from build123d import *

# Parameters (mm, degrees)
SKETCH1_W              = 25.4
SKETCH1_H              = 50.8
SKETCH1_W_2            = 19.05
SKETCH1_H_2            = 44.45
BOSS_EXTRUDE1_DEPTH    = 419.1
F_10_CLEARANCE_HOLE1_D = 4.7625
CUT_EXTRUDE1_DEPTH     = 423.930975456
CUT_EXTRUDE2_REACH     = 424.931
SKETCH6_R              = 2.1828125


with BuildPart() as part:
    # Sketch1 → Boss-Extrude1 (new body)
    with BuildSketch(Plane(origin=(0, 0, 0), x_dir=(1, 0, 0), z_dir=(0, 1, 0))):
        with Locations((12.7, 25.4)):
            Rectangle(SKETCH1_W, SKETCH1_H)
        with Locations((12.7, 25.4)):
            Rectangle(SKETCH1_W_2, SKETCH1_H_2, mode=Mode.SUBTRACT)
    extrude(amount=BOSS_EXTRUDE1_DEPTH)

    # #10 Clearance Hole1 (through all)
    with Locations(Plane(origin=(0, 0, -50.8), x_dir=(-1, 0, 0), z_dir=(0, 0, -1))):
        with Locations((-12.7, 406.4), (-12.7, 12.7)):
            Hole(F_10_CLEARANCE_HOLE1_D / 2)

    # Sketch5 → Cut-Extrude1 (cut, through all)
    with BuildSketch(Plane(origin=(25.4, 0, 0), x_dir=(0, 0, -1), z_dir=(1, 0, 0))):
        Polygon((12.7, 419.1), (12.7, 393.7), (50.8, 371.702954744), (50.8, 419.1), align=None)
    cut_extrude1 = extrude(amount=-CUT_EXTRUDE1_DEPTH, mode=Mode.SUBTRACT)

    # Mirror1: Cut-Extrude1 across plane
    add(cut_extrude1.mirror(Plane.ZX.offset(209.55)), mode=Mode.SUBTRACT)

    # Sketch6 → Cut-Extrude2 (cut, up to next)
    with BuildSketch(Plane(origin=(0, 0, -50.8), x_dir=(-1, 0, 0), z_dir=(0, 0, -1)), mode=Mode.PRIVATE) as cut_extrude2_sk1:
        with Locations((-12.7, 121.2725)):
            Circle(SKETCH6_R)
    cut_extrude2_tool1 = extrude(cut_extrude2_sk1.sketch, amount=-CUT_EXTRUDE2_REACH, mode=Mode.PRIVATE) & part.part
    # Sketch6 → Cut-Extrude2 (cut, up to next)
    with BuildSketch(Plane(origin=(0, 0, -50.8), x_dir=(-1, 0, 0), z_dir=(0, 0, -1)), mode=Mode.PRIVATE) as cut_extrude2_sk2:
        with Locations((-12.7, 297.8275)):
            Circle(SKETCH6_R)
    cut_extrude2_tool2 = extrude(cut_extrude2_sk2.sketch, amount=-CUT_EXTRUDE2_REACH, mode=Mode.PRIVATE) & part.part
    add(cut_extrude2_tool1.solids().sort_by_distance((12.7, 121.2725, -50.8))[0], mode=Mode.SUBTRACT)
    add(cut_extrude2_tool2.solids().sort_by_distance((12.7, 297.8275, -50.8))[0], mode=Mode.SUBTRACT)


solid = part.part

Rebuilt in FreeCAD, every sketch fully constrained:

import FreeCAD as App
import Part
import Sketcher

V = App.Vector
Q = App.Units.Quantity

doc = App.newDocument("Part")
body = doc.addObject("PartDesign::Body", "Body")

# Sketch on XZ plane
sketch1 = body.newObject("Sketcher::SketchObject", "Sketch")
sketch1.AttachmentSupport = (doc.getObject("XZ_Plane"), [""])
sketch1.MapMode = "FlatFace"
sketch1.addGeometry(Part.LineSegment(V(0, -51, 0), V(0, 0, 0)), False)
sketch1.addGeometry(Part.LineSegment(V(0, 0, 0), V(25, 0, 0)), False)
sketch1.addGeometry(Part.LineSegment(V(25, 0, 0), V(25, -51, 0)), False)
sketch1.addGeometry(Part.LineSegment(V(25, -51, 0), V(0, -51, 0)), False)
sketch1.addGeometry(Part.LineSegment(V(22, -3, 0), V(3, -3, 0)), False)
sketch1.addGeometry(Part.LineSegment(V(3, -3, 0), V(3, -48, 0)), False)
sketch1.addGeometry(Part.LineSegment(V(3, -48, 0), V(22, -48, 0)), False)
sketch1.addGeometry(Part.LineSegment(V(22, -48, 0), V(22, -3, 0)), False)
sketch1.addConstraint(Sketcher.Constraint("Coincident", 0, 2, 1, 1))
sketch1.addConstraint(Sketcher.Constraint("Coincident", 1, 2, 2, 1))
sketch1.addConstraint(Sketcher.Constraint("Coincident", 2, 2, 3, 1))
sketch1.addConstraint(Sketcher.Constraint("Coincident", 3, 2, 0, 1))
sketch1.addConstraint(Sketcher.Constraint("Coincident", 4, 2, 5, 1))
sketch1.addConstraint(Sketcher.Constraint("Coincident", 5, 2, 6, 1))
sketch1.addConstraint(Sketcher.Constraint("Coincident", 6, 2, 7, 1))
sketch1.addConstraint(Sketcher.Constraint("Coincident", 7, 2, 4, 1))
sketch1.addConstraint(Sketcher.Constraint("Vertical", 0))
sketch1.addConstraint(Sketcher.Constraint("Horizontal", 1))
sketch1.addConstraint(Sketcher.Constraint("Vertical", 2))
sketch1.addConstraint(Sketcher.Constraint("Horizontal", 3))
sketch1.addConstraint(Sketcher.Constraint("Horizontal", 4))
sketch1.addConstraint(Sketcher.Constraint("Vertical", 5))
sketch1.addConstraint(Sketcher.Constraint("Horizontal", 6))
sketch1.addConstraint(Sketcher.Constraint("Vertical", 7))
sketch1.addConstraint(Sketcher.Constraint("Coincident", 0, 2, -1, 1))
sketch1.addConstraint(Sketcher.Constraint("DistanceX", 1, 1, 1, 2, Q("1 in")))
sketch1.addConstraint(Sketcher.Constraint("DistanceY", 0, 1, 0, 2, Q("2 in")))
sketch1.addConstraint(Sketcher.Constraint("DistanceX", 4, 2, 4, 1, Q("0.75 in")))
sketch1.addConstraint(Sketcher.Constraint("DistanceY", 5, 2, 5, 1, Q("1.75 in")))
sketch1.addConstraint(Sketcher.Constraint("DistanceX", -1, 1, 4, 2, Q("0.125 in")))
sketch1.addConstraint(Sketcher.Constraint("DistanceY", 4, 2, -1, 1, Q("0.125 in")))
pad1 = body.newObject("PartDesign::Pad", "Pad")
pad1.Profile = sketch1
pad1.Length = Q("16.5 in")
pad1.Reversed = True

# Sketch on XY plane
sketch2 = body.newObject("Sketcher::SketchObject", "Sketch001")
sketch2.AttachmentSupport = (doc.getObject("XY_Plane"), [""])
sketch2.MapMode = "FlatFace"
sketch2.AttachmentOffset = App.Placement(V(0, 0, -2 * 25.4), App.Rotation())
sketch2.addGeometry(Part.Circle(V(12.7, 406.4, 0), V(0, 0, 1), 2.4), False)
sketch2.addGeometry(Part.Circle(V(12.7, 12.7, 0), V(0, 0, 1), 2.4), False)
sketch2.addConstraint(Sketcher.Constraint("Equal", 0, 1))
sketch2.addConstraint(Sketcher.Constraint("Vertical", 0, 3, 1, 3))
sketch2.addConstraint(Sketcher.Constraint("Diameter", 0, Q("0.1875 in")))
sketch2.addConstraint(Sketcher.Constraint("DistanceY", -1, 1, 0, 3, Q("16 in")))
sketch2.addConstraint(Sketcher.Constraint("DistanceX", -1, 1, 0, 3, Q("0.5 in")))
sketch2.addConstraint(Sketcher.Constraint("DistanceY", -1, 1, 1, 3, Q("0.5 in")))
doc.recompute()
hole = body.newObject("PartDesign::Hole", "Hole")
hole.Profile = sketch2
hole.ThreadType = "None"
hole.Diameter = Q("0.1875 in")
hole.DepthType = "ThroughAll"
hole.Reversed = True

# Sketch on YZ plane
sketch3 = body.newObject("Sketcher::SketchObject", "Sketch002")
sketch3.AttachmentSupport = (doc.getObject("YZ_Plane"), [""])
sketch3.MapMode = "FlatFace"
sketch3.AttachmentOffset = App.Placement(V(0, 0, 1 * 25.4), App.Rotation())
sketch3.addGeometry(Part.LineSegment(V(419, -13, 0), V(394, -13, 0)), False)
sketch3.addGeometry(Part.LineSegment(V(394, -13, 0), V(372, -51, 0)), False)
sketch3.addGeometry(Part.LineSegment(V(372, -51, 0), V(419, -51, 0)), False)
sketch3.addGeometry(Part.LineSegment(V(419, -51, 0), V(419, -13, 0)), False)
sketch3.addConstraint(Sketcher.Constraint("Coincident", 0, 2, 1, 1))
sketch3.addConstraint(Sketcher.Constraint("Coincident", 1, 2, 2, 1))
sketch3.addConstraint(Sketcher.Constraint("Coincident", 2, 2, 3, 1))
sketch3.addConstraint(Sketcher.Constraint("Coincident", 3, 2, 0, 1))
sketch3.addConstraint(Sketcher.Constraint("Horizontal", 0))
sketch3.addConstraint(Sketcher.Constraint("Horizontal", 2))
sketch3.addConstraint(Sketcher.Constraint("Vertical", 3))
sketch3.addConstraint(Sketcher.Constraint("DistanceX", 0, 2, 0, 1, Q("1 in")))
sketch3.addConstraint(Sketcher.Constraint("DistanceY", 3, 1, 3, 2, Q("1.5 in")))
sketch3.addConstraint(Sketcher.Constraint("DistanceY", 1, 2, -1, 1, Q("2 in")))
sketch3.addConstraint(Sketcher.Constraint("Angle", 1, Q("-120 deg")))
sketch3.addConstraint(Sketcher.Constraint("DistanceX", -1, 1, 0, 2, Q("15.5 in")))
pocket1 = body.newObject("PartDesign::Pocket", "Pocket")
pocket1.Profile = sketch3
pocket1.Type = "ThroughAll"
doc.recompute()

datumplane = body.newObject("PartDesign::Plane", "DatumPlane")
datumplane.AttachmentSupport = (doc.getObject("XZ_Plane"), [""])
datumplane.MapMode = "FlatFace"
datumplane.AttachmentOffset = App.Placement(V(0, 0, -8.25 * 25.4), App.Rotation())
mirrored = body.newObject("PartDesign::Mirrored", "Mirrored")
mirrored.Originals = [pocket1]
mirrored.MirrorPlane = (datumplane, [""])
body.Tip = mirrored

# Sketch on XY plane
sketch4 = body.newObject("Sketcher::SketchObject", "Sketch003")
sketch4.AttachmentSupport = (doc.getObject("XY_Plane"), [""])
sketch4.MapMode = "FlatFace"
sketch4.AttachmentOffset = App.Placement(V(0, 0, -2 * 25.4), App.Rotation())
sketch4.addGeometry(Part.Circle(V(12.7, 121.3, 0), V(0, 0, 1), 2.2), False)
sketch4.addConstraint(Sketcher.Constraint("Diameter", 0, Q("0.171875 in")))
sketch4.addConstraint(Sketcher.Constraint("DistanceX", -1, 1, 0, 3, Q("0.5 in")))
sketch4.addConstraint(Sketcher.Constraint("DistanceY", -1, 1, 0, 3, 121.2725))
pocket2 = body.newObject("PartDesign::Pocket", "Pocket001")
pocket2.Profile = sketch4
pocket2.Type = "UpToFirst"
pocket2.Reversed = True

# Sketch on XY plane
sketch5 = body.newObject("Sketcher::SketchObject", "Sketch004")
sketch5.AttachmentSupport = (doc.getObject("XY_Plane"), [""])
sketch5.MapMode = "FlatFace"
sketch5.AttachmentOffset = App.Placement(V(0, 0, -2 * 25.4), App.Rotation())
sketch5.addGeometry(Part.Circle(V(12.7, 297.8, 0), V(0, 0, 1), 2.2), False)
sketch5.addConstraint(Sketcher.Constraint("Diameter", 0, Q("0.171875 in")))
sketch5.addConstraint(Sketcher.Constraint("DistanceX", -1, 1, 0, 3, Q("0.5 in")))
sketch5.addConstraint(Sketcher.Constraint("DistanceY", -1, 1, 0, 3, 297.8275))
pocket3 = body.newObject("PartDesign::Pocket", "Pocket002")
pocket3.Profile = sketch5
pocket3.Type = "UpToFirst"
pocket3.Reversed = True

doc.recompute()
